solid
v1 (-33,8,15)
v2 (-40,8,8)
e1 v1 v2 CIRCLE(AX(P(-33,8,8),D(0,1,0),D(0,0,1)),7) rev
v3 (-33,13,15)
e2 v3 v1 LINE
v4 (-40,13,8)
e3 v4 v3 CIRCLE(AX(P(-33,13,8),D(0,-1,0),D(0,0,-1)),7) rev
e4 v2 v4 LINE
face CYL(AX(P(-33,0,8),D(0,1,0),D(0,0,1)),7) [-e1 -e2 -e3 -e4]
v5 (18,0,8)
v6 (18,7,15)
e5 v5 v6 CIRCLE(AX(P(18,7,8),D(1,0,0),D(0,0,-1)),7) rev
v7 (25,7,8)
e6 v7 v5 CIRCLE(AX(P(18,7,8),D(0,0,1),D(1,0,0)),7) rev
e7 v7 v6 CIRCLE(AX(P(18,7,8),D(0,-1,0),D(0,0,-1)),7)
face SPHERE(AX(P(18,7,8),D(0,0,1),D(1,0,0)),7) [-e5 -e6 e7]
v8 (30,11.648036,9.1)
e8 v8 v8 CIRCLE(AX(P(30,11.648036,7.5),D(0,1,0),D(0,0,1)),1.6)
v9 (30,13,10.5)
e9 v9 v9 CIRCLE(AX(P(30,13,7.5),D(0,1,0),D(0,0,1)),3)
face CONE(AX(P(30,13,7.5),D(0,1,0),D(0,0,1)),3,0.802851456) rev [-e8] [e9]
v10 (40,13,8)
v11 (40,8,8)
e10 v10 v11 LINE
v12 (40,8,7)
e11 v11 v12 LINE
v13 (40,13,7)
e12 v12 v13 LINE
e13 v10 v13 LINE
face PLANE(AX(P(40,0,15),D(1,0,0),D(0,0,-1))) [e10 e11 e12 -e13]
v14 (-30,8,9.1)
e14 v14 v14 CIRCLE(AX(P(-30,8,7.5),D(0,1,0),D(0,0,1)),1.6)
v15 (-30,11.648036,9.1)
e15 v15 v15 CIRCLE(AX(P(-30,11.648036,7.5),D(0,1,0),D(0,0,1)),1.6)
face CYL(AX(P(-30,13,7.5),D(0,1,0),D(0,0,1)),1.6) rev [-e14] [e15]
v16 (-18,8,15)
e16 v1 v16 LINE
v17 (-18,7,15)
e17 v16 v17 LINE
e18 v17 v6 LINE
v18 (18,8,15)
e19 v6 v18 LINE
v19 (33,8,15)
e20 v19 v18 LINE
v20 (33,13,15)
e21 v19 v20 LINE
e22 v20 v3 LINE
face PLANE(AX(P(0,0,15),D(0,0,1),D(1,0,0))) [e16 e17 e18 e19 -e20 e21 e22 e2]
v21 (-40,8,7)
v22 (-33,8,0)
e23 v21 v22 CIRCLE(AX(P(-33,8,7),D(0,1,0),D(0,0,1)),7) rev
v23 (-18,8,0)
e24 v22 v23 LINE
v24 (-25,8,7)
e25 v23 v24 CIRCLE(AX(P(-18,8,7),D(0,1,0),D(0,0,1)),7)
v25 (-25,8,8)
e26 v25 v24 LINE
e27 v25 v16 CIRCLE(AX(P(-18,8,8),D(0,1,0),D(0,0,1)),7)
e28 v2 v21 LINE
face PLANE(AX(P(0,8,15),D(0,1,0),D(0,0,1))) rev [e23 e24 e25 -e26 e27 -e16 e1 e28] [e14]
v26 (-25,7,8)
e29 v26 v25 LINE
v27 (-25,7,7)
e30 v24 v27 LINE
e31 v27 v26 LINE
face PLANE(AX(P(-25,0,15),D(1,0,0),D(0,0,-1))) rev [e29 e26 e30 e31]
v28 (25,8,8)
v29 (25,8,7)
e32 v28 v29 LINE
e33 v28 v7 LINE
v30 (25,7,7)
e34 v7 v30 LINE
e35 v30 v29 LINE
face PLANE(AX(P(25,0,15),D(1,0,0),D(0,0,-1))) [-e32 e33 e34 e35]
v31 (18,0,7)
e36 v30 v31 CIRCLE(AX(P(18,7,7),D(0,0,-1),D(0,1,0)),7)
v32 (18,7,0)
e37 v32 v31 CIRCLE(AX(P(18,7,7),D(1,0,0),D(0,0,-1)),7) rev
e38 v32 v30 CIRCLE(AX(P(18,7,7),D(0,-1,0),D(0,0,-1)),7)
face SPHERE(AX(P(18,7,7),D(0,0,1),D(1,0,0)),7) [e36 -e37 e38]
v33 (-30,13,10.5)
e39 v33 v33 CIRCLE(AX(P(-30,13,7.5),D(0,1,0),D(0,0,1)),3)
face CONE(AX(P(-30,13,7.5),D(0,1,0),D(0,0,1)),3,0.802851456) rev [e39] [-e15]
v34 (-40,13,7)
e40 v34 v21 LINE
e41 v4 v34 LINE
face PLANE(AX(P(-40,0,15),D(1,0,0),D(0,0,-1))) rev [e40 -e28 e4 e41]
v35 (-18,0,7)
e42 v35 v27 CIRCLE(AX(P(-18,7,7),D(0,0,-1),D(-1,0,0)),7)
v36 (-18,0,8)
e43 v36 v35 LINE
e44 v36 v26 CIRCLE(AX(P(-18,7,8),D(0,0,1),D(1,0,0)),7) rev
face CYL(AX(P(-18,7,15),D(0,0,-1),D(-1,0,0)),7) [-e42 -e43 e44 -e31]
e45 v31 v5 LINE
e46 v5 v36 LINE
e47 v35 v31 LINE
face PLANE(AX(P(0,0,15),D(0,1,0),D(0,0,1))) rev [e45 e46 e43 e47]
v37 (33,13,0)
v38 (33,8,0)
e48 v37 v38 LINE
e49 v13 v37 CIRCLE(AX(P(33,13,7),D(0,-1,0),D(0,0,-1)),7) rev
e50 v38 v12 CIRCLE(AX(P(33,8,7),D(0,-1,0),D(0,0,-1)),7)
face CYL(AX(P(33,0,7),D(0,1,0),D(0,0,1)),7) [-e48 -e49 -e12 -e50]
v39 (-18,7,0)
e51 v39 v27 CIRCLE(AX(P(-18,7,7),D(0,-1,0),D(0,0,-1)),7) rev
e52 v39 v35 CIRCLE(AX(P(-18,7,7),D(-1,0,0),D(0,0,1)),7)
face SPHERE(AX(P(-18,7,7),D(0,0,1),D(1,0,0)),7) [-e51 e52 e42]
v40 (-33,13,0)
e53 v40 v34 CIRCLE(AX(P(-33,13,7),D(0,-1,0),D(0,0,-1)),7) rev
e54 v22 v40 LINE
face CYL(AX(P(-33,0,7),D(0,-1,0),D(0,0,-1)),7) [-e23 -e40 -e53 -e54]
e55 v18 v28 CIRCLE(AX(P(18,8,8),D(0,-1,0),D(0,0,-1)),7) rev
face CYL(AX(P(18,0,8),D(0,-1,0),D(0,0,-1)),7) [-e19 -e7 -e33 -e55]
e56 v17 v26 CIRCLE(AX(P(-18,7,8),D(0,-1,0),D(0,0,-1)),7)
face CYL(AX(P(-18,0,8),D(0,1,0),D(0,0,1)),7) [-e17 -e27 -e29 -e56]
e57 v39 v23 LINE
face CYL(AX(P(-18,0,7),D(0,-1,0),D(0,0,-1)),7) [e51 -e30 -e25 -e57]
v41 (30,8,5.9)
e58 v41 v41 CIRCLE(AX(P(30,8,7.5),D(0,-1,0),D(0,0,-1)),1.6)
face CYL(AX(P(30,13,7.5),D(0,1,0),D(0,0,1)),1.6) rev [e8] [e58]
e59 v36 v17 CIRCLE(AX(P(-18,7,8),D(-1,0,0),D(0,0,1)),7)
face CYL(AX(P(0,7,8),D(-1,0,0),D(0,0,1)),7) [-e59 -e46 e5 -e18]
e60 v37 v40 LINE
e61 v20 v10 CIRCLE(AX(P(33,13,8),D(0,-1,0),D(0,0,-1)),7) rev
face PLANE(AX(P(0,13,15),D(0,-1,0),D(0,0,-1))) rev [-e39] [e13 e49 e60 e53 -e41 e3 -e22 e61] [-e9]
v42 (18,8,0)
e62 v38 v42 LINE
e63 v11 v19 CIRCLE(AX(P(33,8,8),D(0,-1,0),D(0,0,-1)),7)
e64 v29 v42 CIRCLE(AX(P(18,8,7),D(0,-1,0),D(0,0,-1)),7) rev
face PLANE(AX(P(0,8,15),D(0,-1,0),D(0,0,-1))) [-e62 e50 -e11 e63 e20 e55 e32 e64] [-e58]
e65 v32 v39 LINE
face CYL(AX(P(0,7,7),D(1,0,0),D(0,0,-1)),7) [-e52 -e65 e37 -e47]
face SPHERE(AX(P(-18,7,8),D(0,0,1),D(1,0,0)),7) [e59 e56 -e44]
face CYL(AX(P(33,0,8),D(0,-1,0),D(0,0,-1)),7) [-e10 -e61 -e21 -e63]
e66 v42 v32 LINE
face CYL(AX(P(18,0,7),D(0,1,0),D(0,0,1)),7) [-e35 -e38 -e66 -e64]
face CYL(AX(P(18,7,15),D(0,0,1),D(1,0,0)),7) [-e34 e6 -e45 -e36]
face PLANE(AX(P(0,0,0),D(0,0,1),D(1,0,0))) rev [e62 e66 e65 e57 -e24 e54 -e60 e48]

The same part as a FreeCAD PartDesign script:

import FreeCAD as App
import Part
import Sketcher
from FreeCAD import Vector


def edges_at(feature, points):
    """Names of the edges that pass closest to the given points."""
    edges = feature.Shape.Edges
    near = lambda p: min(range(len(edges)), key=lambda i: edges[i].distToShape(Part.Vertex(*p))[0])
    return sorted({f"Edge{near(p) + 1}" for p in points})

doc = App.newDocument("Part")
body = doc.addObject("PartDesign::Body", "Body")

sketch1 = body.newObject("Sketcher::SketchObject", "Sketch")
sketch1.AttachmentSupport = (doc.getObject("XY_Plane"), [""])
sketch1.MapMode = "FlatFace"
sketch1.addGeometry([
    Part.LineSegment(Vector(-40, 13, 0), Vector(-40, 8, 0)),
    Part.LineSegment(Vector(-40, 8, 0), Vector(-25, 8, 0)),
    Part.LineSegment(Vector(-25, 8, 0), Vector(-25, 0, 0)),
    Part.LineSegment(Vector(-25, 0, 0), Vector(25, 0, 0)),
    Part.LineSegment(Vector(25, 0, 0), Vector(25, 8, 0)),
    Part.LineSegment(Vector(25, 8, 0), Vector(40, 8, 0)),
    Part.LineSegment(Vector(40, 8, 0), Vector(40, 13, 0)),
    Part.LineSegment(Vector(40, 13, 0), Vector(-40, 13, 0)),
], False)
sketch1.addConstraint([
    Sketcher.Constraint("Coincident", 0, 2, 1, 1),
    Sketcher.Constraint("Coincident", 1, 2, 2, 1),
    Sketcher.Constraint("Coincident", 2, 2, 3, 1),
    Sketcher.Constraint("Coincident", 3, 2, 4, 1),
    Sketcher.Constraint("Coincident", 4, 2, 5, 1),
    Sketcher.Constraint("Coincident", 5, 2, 6, 1),
    Sketcher.Constraint("Coincident", 6, 2, 7, 1),
    Sketcher.Constraint("Coincident", 7, 2, 0, 1),
    Sketcher.Constraint("Vertical", 0),
    Sketcher.Constraint("Horizontal", 1),
    Sketcher.Constraint("Vertical", 2),
    Sketcher.Constraint("Horizontal", 3),
    Sketcher.Constraint("Vertical", 4),
    Sketcher.Constraint("Horizontal", 5),
    Sketcher.Constraint("Vertical", 6),
    Sketcher.Constraint("Horizontal", 7),
    Sketcher.Constraint("Symmetric", 2, 2, 3, 2, -1, 1),
    Sketcher.Constraint("Symmetric", 0, 2, 5, 2, -2),
    Sketcher.Constraint("DistanceX", 1, 1, 1, 2, 15.0),
    Sketcher.Constraint("DistanceX", 3, 1, 3, 2, 50.0),
    Sketcher.Constraint("DistanceY", 0, 2, 0, 1, 5.0),
    Sketcher.Constraint("DistanceY", 2, 2, 2, 1, 8.0),
])
pad1 = body.newObject("PartDesign::Pad", "Pad")
pad1.Profile = sketch1
pad1.Length = 15

sketch2 = body.newObject("Sketcher::SketchObject", "Sketch001")
sketch2.AttachmentSupport = (doc.getObject("XZ_Plane"), [""])
sketch2.MapMode = "FlatFace"
sketch2.AttachmentOffset = App.Placement(Vector(0, 0, -13), App.Rotation())
sketch2.addGeometry([
    Part.Circle(Vector(-30, 7.5, 0), Vector(0, 0, 1), 1.6),
    Part.Circle(Vector(30, 7.5, 0), Vector(0, 0, 1), 1.6),
], False)
sketch2.addConstraint([
    Sketcher.Constraint("Equal", 0, 1),
    Sketcher.Constraint("Symmetric", 0, 3, 1, 3, -2),
    Sketcher.Constraint("Diameter", 0, 3.2),
    Sketcher.Constraint("DistanceX", 0, 3, -1, 1, 30.0),
    Sketcher.Constraint("DistanceY", -1, 1, 0, 3, 7.5),
])
doc.recompute()
hole = body.newObject("PartDesign::Hole", "Hole")
hole.Profile = sketch2
hole.ThreadType = "None"
hole.Diameter = 3.2
hole.DepthType = "ThroughAll"
hole.HoleCutType = "Countersink"
hole.HoleCutDiameter = 6
hole.HoleCutCountersinkAngle = 92
hole.Reversed = True
doc.recompute()

fillet = body.newObject("PartDesign::Fillet", "Fillet")
fillet.Base = (hole, edges_at(hole, [
    (40, 10.5, 0),
    (25, 4, 0),
    (0, 0, 0),
    (-25, 0, 7.5),
    (25, 0, 7.5),
    (40, 10.5, 15),
    (-40, 10.5, 15),
    (-25, 4, 15),
    (0, 0, 15),
    (-25, 4, 0),
    (25, 4, 15),
    (-40, 10.5, 0),
]))
fillet.Radius = 7

doc.recompute()
